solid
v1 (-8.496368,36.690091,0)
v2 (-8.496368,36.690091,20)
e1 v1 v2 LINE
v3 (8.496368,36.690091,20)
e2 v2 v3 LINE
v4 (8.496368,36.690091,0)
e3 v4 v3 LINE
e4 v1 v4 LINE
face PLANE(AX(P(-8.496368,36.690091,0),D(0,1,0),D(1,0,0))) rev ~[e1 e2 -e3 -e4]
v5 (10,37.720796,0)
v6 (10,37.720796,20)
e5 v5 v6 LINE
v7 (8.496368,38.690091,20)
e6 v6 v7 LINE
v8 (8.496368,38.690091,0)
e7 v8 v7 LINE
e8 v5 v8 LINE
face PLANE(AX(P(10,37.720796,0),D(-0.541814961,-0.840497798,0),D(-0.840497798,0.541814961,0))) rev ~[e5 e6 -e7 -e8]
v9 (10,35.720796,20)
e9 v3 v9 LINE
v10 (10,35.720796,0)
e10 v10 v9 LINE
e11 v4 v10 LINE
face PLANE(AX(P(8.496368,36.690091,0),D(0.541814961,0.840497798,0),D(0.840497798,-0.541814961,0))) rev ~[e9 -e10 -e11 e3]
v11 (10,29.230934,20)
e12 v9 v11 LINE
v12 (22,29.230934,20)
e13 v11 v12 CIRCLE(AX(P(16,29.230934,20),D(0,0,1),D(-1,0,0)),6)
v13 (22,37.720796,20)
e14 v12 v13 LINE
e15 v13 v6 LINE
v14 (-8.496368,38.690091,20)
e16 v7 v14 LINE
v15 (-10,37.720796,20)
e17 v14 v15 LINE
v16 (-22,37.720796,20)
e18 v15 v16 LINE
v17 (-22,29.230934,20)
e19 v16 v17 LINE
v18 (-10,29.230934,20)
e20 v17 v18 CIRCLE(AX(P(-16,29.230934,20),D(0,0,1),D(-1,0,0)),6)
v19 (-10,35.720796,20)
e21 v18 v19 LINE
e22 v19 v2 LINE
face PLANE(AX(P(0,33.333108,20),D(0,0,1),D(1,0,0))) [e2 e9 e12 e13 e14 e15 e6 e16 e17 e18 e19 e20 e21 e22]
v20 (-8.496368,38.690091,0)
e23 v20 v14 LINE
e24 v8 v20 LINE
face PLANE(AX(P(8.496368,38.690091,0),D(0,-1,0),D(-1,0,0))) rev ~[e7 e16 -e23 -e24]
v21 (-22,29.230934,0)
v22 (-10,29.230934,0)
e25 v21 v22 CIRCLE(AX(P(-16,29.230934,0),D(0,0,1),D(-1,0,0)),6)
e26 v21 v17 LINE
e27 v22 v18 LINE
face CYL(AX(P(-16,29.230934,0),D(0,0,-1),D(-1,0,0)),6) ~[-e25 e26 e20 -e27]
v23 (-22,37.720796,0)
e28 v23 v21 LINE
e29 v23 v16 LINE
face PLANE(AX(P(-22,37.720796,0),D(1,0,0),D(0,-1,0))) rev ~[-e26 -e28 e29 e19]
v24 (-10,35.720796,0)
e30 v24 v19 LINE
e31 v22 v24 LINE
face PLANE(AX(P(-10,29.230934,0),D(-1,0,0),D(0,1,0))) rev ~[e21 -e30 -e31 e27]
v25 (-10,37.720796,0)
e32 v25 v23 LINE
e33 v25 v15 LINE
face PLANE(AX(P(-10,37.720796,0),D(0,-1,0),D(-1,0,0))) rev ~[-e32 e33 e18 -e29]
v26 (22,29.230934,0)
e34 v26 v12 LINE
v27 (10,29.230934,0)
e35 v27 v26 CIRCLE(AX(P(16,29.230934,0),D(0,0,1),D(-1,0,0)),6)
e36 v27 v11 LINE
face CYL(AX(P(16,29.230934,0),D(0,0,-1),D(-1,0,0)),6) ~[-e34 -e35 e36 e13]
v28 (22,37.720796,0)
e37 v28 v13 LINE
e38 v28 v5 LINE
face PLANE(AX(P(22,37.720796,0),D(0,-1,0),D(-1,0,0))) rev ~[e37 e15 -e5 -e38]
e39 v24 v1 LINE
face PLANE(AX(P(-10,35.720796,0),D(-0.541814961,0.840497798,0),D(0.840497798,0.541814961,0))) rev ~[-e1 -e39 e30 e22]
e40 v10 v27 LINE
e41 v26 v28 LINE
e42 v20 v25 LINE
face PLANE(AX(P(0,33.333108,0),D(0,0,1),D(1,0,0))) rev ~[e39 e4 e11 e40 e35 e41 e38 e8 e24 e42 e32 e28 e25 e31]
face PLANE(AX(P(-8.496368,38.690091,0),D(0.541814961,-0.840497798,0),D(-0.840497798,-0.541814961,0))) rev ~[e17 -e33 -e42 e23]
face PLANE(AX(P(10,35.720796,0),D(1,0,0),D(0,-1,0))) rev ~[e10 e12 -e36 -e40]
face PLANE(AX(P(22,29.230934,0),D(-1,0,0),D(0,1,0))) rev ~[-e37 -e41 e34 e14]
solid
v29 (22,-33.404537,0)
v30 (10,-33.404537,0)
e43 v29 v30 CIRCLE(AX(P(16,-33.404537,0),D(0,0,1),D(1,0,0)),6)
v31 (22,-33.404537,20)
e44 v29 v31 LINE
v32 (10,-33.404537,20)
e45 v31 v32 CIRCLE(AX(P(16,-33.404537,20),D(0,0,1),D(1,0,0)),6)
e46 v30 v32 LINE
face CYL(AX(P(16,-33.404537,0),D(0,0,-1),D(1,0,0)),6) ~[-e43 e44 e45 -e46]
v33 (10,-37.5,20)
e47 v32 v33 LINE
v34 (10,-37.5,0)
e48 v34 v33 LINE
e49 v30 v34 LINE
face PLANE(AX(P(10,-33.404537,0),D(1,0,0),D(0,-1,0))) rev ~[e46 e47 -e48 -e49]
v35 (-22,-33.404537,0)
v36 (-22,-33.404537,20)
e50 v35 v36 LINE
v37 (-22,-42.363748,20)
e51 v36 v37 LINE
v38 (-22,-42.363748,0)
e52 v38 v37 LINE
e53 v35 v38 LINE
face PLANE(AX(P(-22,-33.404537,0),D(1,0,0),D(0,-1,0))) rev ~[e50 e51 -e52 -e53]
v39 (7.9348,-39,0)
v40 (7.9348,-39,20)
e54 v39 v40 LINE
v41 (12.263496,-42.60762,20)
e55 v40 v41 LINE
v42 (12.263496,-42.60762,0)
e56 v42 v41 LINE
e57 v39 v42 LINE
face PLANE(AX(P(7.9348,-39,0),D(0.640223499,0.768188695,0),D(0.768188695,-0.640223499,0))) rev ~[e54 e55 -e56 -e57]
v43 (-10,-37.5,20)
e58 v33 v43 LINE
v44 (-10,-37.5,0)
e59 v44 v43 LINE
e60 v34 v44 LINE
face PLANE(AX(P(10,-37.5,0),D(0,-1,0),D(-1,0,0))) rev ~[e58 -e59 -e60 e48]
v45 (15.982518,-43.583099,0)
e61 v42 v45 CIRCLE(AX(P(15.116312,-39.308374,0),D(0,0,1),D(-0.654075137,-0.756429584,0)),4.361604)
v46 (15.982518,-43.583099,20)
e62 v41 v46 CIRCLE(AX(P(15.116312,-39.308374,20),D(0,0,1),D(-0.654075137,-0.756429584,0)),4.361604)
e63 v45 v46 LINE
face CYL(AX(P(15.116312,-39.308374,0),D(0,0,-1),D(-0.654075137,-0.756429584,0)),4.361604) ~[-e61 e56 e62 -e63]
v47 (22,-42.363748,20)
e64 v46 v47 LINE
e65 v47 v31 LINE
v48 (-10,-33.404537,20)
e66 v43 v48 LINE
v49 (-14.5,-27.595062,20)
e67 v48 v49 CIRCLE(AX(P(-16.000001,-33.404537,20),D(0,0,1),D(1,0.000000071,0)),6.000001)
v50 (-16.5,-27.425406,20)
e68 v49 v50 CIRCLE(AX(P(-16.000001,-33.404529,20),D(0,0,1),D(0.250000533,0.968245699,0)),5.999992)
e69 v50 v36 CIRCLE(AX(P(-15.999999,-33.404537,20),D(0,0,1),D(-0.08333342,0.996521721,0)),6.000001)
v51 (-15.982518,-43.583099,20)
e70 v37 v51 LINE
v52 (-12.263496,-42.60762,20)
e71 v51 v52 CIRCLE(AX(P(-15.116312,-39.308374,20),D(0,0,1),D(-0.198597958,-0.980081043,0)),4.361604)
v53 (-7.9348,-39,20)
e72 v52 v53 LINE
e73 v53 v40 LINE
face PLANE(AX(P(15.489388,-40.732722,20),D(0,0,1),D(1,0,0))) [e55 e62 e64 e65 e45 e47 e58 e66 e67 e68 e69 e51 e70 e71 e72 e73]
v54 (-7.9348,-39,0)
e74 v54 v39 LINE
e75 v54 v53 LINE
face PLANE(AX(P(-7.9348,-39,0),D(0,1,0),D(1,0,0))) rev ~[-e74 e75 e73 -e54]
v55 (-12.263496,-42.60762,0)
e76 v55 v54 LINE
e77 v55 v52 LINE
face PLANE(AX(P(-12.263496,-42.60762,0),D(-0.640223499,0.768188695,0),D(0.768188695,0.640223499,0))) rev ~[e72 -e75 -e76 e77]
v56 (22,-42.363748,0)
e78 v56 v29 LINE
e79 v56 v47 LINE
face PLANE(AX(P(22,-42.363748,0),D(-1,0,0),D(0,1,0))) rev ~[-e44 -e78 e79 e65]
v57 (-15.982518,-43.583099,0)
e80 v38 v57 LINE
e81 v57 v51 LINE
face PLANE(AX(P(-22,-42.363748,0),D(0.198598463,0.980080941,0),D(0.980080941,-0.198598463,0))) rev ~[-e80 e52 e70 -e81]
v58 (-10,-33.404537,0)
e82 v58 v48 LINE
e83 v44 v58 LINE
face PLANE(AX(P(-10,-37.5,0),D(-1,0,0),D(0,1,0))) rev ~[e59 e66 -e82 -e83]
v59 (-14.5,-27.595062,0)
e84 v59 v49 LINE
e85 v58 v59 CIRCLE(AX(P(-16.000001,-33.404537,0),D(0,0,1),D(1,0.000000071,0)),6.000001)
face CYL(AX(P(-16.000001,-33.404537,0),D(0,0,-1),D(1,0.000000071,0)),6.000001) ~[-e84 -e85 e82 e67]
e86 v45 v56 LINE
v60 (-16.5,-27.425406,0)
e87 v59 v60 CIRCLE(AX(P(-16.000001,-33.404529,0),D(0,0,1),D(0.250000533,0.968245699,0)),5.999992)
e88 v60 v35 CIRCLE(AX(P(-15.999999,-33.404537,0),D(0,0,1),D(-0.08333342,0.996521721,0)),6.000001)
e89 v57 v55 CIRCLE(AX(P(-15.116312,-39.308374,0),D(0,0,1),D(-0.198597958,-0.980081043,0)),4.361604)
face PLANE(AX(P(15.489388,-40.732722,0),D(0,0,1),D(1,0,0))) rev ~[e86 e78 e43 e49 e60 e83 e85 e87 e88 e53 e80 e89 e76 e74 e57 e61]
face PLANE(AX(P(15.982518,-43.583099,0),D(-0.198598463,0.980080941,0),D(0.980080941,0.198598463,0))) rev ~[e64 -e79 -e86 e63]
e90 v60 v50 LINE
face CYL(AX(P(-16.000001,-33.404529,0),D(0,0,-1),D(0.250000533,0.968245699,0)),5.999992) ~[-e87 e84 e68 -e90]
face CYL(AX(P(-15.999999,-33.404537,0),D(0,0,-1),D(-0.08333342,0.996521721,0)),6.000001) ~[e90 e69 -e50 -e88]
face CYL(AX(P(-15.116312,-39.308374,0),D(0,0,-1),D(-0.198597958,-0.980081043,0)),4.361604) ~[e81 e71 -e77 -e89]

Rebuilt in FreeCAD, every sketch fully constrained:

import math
import FreeCAD as App
import Part
import Sketcher

doc = App.newDocument("Part")
params = doc.addObject("Spreadsheet::Sheet", "Params")
for row, (alias, value) in enumerate([
    ("sketch1_radius", "6 mm"),
    ("sketch1_width", "20 mm"),
    ("pad1_length", "20 mm"),
], start=1):
    params.set(f"A{row}", alias)
    params.set(f"B{row}", "=" + value)
    params.setAlias(f"B{row}", alias)

body = doc.addObject("PartDesign::Body", "Body")
body.AllowCompound = True

# Sketch on XY plane
sketch1 = doc.addObject("Sketcher::SketchObject", "Sketch")
body.addObject(sketch1)
sketch1.AttachmentSupport = (doc.XY_Plane, [""])
sketch1.MapMode = "FlatFace"
sketch1.addGeometry([
    Part.LineSegment(App.Vector(7.9348, -39, 0), App.Vector(12.263496, -42.60762, 0)),  # 0
    Part.ArcOfCircle(Part.Circle(App.Vector(15.116312, -39.308374, 0), App.Vector(0, 0, 1), 4.361604), math.radians(-130.849559), math.radians(-78.545017)),  # 1
    Part.LineSegment(App.Vector(15.982518, -43.583099, 0), App.Vector(22, -42.363748, 0)),  # 2
    Part.LineSegment(App.Vector(22, -42.363748, 0), App.Vector(22, -33.404537, 0)),  # 3
    Part.ArcOfCircle(Part.Circle(App.Vector(16, -33.404537, 0), App.Vector(0, 0, 1), 6), math.radians(0), math.radians(180)),  # 4
    Part.LineSegment(App.Vector(10, -33.404537, 0), App.Vector(10, -37.5, 0)),  # 5
    Part.LineSegment(App.Vector(10, -37.5, 0), App.Vector(-10, -37.5, 0)),  # 6
    Part.LineSegment(App.Vector(-10, -37.5, 0), App.Vector(-10, -33.404537, 0)),  # 7
    Part.ArcOfCircle(Part.Circle(App.Vector(-16.000001, -33.404537, 0), App.Vector(0, 0, 1), 6.000001), math.radians(0.000004), math.radians(75.522484)),  # 8
    Part.ArcOfCircle(Part.Circle(App.Vector(-16.000001, -33.404529, 0), App.Vector(0, 0, 1), 5.999992), math.radians(75.522456), math.radians(94.780187)),  # 9
    Part.ArcOfCircle(Part.Circle(App.Vector(-15.999999, -33.404537, 0), App.Vector(0, 0, 1), 6.000001), math.radians(94.780197), math.radians(180.000001)),  # 10
    Part.LineSegment(App.Vector(-22, -33.404537, 0), App.Vector(-22, -42.363748, 0)),  # 11
    Part.LineSegment(App.Vector(-22, -42.363748, 0), App.Vector(-15.982518, -43.583099, 0)),  # 12
    Part.ArcOfCircle(Part.Circle(App.Vector(-15.116312, -39.308374, 0), App.Vector(0, 0, 1), 4.361604), math.radians(-101.454983), math.radians(-49.150441)),  # 13
    Part.LineSegment(App.Vector(-12.263496, -42.60762, 0), App.Vector(-7.9348, -39, 0)),  # 14
    Part.LineSegment(App.Vector(-7.9348, -39, 0), App.Vector(7.9348, -39, 0)),  # 15
    Part.LineSegment(App.Vector(-22, 37.720796, 0), App.Vector(-22, 29.230934, 0)),  # 16
    Part.ArcOfCircle(Part.Circle(App.Vector(-16, 29.230934, 0), App.Vector(0, 0, 1), 6), math.radians(180), math.radians(360)),  # 17
    Part.LineSegment(App.Vector(-10, 29.230934, 0), App.Vector(-10, 35.720796, 0)),  # 18
    Part.LineSegment(App.Vector(-10, 35.720796, 0), App.Vector(-8.496368, 36.690091, 0)),  # 19
    Part.LineSegment(App.Vector(-8.496368, 36.690091, 0), App.Vector(8.496368, 36.690091, 0)),  # 20
    Part.LineSegment(App.Vector(8.496368, 36.690091, 0), App.Vector(10, 35.720796, 0)),  # 21
    Part.LineSegment(App.Vector(10, 35.720796, 0), App.Vector(10, 29.230934, 0)),  # 22
    Part.ArcOfCircle(Part.Circle(App.Vector(16, 29.230934, 0), App.Vector(0, 0, 1), 6), math.radians(180), math.radians(360)),  # 23
    Part.LineSegment(App.Vector(22, 29.230934, 0), App.Vector(22, 37.720796, 0)),  # 24
    Part.LineSegment(App.Vector(22, 37.720796, 0), App.Vector(10, 37.720796, 0)),  # 25
    Part.LineSegment(App.Vector(10, 37.720796, 0), App.Vector(8.496368, 38.690091, 0)),  # 26
    Part.LineSegment(App.Vector(8.496368, 38.690091, 0), App.Vector(-8.496368, 38.690091, 0)),  # 27
    Part.LineSegment(App.Vector(-8.496368, 38.690091, 0), App.Vector(-10, 37.720796, 0)),  # 28
    Part.LineSegment(App.Vector(-10, 37.720796, 0), App.Vector(-22, 37.720796, 0)),  # 29
], False)
sketch1.addConstraint([
    Sketcher.Constraint("Coincident", 0, 2, 1, 1),
    Sketcher.Constraint("Tangent", 1, 2, 2, 1),
    Sketcher.Constraint("Coincident", 2, 2, 3, 1),
    Sketcher.Constraint("Tangent", 3, 2, 4, 1),
    Sketcher.Constraint("Tangent", 4, 2, 5, 1),
    Sketcher.Constraint("Coincident", 5, 2, 6, 1),
    Sketcher.Constraint("Coincident", 6, 2, 7, 1),
    Sketcher.Constraint("Tangent", 7, 2, 8, 1),
    Sketcher.Constraint("Tangent", 8, 2, 9, 1),
    Sketcher.Constraint("Tangent", 9, 2, 10, 1),
    Sketcher.Constraint("Tangent", 10, 2, 11, 1),
    Sketcher.Constraint("Coincident", 11, 2, 12, 1),
    Sketcher.Constraint("Tangent", 12, 2, 13, 1),
    Sketcher.Constraint("Coincident", 13, 2, 14, 1),
    Sketcher.Constraint("Coincident", 14, 2, 15, 1),
    Sketcher.Constraint("Coincident", 15, 2, 0, 1),
    Sketcher.Constraint("Tangent", 16, 2, 17, 1),
    Sketcher.Constraint("Tangent", 17, 2, 18, 1),
    Sketcher.Constraint("Coincident", 18, 2, 19, 1),
    Sketcher.Constraint("Coincident", 19, 2, 20, 1),
    Sketcher.Constraint("Coincident", 20, 2, 21, 1),
    Sketcher.Constraint("Coincident", 21, 2, 22, 1),
    Sketcher.Constraint("Tangent", 22, 2, 23, 1),
    Sketcher.Constraint("Tangent", 23, 2, 24, 1),
    Sketcher.Constraint("Coincident", 24, 2, 25, 1),
    Sketcher.Constraint("Coincident", 25, 2, 26, 1),
    Sketcher.Constraint("Coincident", 26, 2, 27, 1),
    Sketcher.Constraint("Coincident", 27, 2, 28, 1),
    Sketcher.Constraint("Coincident", 28, 2, 29, 1),
    Sketcher.Constraint("Coincident", 29, 2, 16, 1),
    Sketcher.Constraint("Vertical", 3),
    Sketcher.Constraint("Vertical", 5),
    Sketcher.Constraint("Horizontal", 6),
    Sketcher.Constraint("Vertical", 7),
    Sketcher.Constraint("Vertical", 11),
    Sketcher.Constraint("Horizontal", 15),
    Sketcher.Constraint("Vertical", 16),
    Sketcher.Constraint("Vertical", 18),
    Sketcher.Constraint("Horizontal", 20),
    Sketcher.Constraint("Vertical", 22),
    Sketcher.Constraint("Vertical", 24),
    Sketcher.Constraint("Horizontal", 25),
    Sketcher.Constraint("Horizontal", 27),
    Sketcher.Constraint("Horizontal", 29),
    Sketcher.Constraint("Coincident", 10, 3, 8, 3),
    Sketcher.Constraint("Equal", 4, 8),
    Sketcher.Constraint("Equal", 1, 13),
    Sketcher.Constraint("Equal", 10, 17),
    Sketcher.Constraint("Equal", 17, 23),
    Sketcher.Constraint("Symmetric", 4, 3, 8, 3, -2),
    Sketcher.Constraint("Symmetric", 1, 3, 13, 3, -2),
    Sketcher.Constraint("Symmetric", 17, 3, 23, 3, -2),
    Sketcher.Constraint("Symmetric", 25, 2, 28, 2, -2),
    Sketcher.Constraint("Parallel", 21, 26),
    Sketcher.Constraint("Parallel", 19, 28),
    Sketcher.Constraint("Horizontal", 2, 2, 11, 2),
    Sketcher.Constraint("Horizontal", 0, 2, 13, 2),
    Sketcher.Constraint("Horizontal", 18, 2, 21, 2),
    Sketcher.Constraint("Vertical", 10, 3, 17, 3),
    Sketcher.Constraint("Vertical", 22, 2, 25, 2),
    Sketcher.Constraint("Vertical", 20, 2, 26, 2),
    Sketcher.Constraint("Equal", 0, 14),
    Sketcher.Constraint("Equal", 19, 21),
    Sketcher.Constraint("Radius", 4, 6.0),
    Sketcher.Constraint("DistanceX", 6, 2, 6, 1, 20.0),
    Sketcher.Constraint("DistanceY", 14, 2, -1, 1, 39.0),
    Sketcher.Constraint("DistanceX", 9, 2, 8, 2, 2.0),
    Sketcher.Constraint("DistanceY", 21, 2, 24, 2, 2.0),
    Sketcher.Constraint("DistanceY", 5, 2, -1, 1, 37.5),
    Sketcher.Constraint("DistanceX", 8, 2, -1, 1, 14.5),
    Sketcher.Constraint("DistanceX", 15, 1, 15, 2, 15.8696),
    Sketcher.Constraint("Radius", 1, 4.361604),
    Sketcher.Constraint("DistanceY", 3, 1, 3, 2, 8.959211),
    Sketcher.Constraint("DistanceY", 16, 2, 16, 1, 8.489862),
    Sketcher.Constraint("DistanceY", 1, 2, -1, 1, 43.583099),
    Sketcher.Constraint("Distance", 0, 5.634938),
    Sketcher.Constraint("Distance", 2, 6.139781),
    Sketcher.Constraint("DistanceX", 20, 1, 20, 2, 16.992736),
    Sketcher.Constraint("DistanceY", 5, 2, 5, 1, 4.095463),
    Sketcher.Constraint("DistanceY", -1, 1, 19, 2, 36.690091),
    Sketcher.Constraint("DistanceY", 10, 3, 17, 3, 62.635471),
])
sketch1.setExpression("Constraints[63]", "Params.sketch1_radius")
sketch1.setExpression("Constraints[64]", "Params.sketch1_width")
pad1 = doc.addObject("PartDesign::Pad", "Pad")
body.addObject(pad1)
pad1.Profile = sketch1
pad1.setExpression("Length", "Params.pad1_length")

doc.recompute()
